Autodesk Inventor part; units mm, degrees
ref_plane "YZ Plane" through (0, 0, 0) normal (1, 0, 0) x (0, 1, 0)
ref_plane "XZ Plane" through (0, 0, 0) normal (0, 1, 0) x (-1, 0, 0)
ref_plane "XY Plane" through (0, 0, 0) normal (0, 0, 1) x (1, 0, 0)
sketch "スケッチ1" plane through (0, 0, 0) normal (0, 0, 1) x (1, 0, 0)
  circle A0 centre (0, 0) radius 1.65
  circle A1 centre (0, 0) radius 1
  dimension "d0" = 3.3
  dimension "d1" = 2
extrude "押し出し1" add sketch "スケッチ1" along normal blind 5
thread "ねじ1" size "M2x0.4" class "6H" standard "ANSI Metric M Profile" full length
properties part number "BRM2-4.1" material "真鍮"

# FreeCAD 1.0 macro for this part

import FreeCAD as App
import Part
import Sketcher

V = App.Vector

doc = App.newDocument("Part")
body = doc.addObject("PartDesign::Body", "Body")

# Sketch on XY plane
sketch1 = body.newObject("Sketcher::SketchObject", "Sketch")
sketch1.AttachmentSupport = (doc.getObject("XY_Plane"), [""])
sketch1.MapMode = "FlatFace"
sketch1.addGeometry(Part.Circle(V(0, 0, 0), V(0, 0, 1), 1.65), False)
sketch1.addGeometry(Part.Circle(V(0, 0, 0), V(0, 0, 1), 1), False)
sketch1.addConstraint(Sketcher.Constraint("Coincident", 0, 3, -1, 1))
sketch1.addConstraint(Sketcher.Constraint("Coincident", 1, 3, -1, 1))
sketch1.addConstraint(Sketcher.Constraint("Diameter", 1, 2.0))
sketch1.addConstraint(Sketcher.Constraint("Diameter", 0, 3.3))
pad1 = body.newObject("PartDesign::Pad", "Pad")
pad1.Profile = sketch1
pad1.Length = 5

doc.recompute()
